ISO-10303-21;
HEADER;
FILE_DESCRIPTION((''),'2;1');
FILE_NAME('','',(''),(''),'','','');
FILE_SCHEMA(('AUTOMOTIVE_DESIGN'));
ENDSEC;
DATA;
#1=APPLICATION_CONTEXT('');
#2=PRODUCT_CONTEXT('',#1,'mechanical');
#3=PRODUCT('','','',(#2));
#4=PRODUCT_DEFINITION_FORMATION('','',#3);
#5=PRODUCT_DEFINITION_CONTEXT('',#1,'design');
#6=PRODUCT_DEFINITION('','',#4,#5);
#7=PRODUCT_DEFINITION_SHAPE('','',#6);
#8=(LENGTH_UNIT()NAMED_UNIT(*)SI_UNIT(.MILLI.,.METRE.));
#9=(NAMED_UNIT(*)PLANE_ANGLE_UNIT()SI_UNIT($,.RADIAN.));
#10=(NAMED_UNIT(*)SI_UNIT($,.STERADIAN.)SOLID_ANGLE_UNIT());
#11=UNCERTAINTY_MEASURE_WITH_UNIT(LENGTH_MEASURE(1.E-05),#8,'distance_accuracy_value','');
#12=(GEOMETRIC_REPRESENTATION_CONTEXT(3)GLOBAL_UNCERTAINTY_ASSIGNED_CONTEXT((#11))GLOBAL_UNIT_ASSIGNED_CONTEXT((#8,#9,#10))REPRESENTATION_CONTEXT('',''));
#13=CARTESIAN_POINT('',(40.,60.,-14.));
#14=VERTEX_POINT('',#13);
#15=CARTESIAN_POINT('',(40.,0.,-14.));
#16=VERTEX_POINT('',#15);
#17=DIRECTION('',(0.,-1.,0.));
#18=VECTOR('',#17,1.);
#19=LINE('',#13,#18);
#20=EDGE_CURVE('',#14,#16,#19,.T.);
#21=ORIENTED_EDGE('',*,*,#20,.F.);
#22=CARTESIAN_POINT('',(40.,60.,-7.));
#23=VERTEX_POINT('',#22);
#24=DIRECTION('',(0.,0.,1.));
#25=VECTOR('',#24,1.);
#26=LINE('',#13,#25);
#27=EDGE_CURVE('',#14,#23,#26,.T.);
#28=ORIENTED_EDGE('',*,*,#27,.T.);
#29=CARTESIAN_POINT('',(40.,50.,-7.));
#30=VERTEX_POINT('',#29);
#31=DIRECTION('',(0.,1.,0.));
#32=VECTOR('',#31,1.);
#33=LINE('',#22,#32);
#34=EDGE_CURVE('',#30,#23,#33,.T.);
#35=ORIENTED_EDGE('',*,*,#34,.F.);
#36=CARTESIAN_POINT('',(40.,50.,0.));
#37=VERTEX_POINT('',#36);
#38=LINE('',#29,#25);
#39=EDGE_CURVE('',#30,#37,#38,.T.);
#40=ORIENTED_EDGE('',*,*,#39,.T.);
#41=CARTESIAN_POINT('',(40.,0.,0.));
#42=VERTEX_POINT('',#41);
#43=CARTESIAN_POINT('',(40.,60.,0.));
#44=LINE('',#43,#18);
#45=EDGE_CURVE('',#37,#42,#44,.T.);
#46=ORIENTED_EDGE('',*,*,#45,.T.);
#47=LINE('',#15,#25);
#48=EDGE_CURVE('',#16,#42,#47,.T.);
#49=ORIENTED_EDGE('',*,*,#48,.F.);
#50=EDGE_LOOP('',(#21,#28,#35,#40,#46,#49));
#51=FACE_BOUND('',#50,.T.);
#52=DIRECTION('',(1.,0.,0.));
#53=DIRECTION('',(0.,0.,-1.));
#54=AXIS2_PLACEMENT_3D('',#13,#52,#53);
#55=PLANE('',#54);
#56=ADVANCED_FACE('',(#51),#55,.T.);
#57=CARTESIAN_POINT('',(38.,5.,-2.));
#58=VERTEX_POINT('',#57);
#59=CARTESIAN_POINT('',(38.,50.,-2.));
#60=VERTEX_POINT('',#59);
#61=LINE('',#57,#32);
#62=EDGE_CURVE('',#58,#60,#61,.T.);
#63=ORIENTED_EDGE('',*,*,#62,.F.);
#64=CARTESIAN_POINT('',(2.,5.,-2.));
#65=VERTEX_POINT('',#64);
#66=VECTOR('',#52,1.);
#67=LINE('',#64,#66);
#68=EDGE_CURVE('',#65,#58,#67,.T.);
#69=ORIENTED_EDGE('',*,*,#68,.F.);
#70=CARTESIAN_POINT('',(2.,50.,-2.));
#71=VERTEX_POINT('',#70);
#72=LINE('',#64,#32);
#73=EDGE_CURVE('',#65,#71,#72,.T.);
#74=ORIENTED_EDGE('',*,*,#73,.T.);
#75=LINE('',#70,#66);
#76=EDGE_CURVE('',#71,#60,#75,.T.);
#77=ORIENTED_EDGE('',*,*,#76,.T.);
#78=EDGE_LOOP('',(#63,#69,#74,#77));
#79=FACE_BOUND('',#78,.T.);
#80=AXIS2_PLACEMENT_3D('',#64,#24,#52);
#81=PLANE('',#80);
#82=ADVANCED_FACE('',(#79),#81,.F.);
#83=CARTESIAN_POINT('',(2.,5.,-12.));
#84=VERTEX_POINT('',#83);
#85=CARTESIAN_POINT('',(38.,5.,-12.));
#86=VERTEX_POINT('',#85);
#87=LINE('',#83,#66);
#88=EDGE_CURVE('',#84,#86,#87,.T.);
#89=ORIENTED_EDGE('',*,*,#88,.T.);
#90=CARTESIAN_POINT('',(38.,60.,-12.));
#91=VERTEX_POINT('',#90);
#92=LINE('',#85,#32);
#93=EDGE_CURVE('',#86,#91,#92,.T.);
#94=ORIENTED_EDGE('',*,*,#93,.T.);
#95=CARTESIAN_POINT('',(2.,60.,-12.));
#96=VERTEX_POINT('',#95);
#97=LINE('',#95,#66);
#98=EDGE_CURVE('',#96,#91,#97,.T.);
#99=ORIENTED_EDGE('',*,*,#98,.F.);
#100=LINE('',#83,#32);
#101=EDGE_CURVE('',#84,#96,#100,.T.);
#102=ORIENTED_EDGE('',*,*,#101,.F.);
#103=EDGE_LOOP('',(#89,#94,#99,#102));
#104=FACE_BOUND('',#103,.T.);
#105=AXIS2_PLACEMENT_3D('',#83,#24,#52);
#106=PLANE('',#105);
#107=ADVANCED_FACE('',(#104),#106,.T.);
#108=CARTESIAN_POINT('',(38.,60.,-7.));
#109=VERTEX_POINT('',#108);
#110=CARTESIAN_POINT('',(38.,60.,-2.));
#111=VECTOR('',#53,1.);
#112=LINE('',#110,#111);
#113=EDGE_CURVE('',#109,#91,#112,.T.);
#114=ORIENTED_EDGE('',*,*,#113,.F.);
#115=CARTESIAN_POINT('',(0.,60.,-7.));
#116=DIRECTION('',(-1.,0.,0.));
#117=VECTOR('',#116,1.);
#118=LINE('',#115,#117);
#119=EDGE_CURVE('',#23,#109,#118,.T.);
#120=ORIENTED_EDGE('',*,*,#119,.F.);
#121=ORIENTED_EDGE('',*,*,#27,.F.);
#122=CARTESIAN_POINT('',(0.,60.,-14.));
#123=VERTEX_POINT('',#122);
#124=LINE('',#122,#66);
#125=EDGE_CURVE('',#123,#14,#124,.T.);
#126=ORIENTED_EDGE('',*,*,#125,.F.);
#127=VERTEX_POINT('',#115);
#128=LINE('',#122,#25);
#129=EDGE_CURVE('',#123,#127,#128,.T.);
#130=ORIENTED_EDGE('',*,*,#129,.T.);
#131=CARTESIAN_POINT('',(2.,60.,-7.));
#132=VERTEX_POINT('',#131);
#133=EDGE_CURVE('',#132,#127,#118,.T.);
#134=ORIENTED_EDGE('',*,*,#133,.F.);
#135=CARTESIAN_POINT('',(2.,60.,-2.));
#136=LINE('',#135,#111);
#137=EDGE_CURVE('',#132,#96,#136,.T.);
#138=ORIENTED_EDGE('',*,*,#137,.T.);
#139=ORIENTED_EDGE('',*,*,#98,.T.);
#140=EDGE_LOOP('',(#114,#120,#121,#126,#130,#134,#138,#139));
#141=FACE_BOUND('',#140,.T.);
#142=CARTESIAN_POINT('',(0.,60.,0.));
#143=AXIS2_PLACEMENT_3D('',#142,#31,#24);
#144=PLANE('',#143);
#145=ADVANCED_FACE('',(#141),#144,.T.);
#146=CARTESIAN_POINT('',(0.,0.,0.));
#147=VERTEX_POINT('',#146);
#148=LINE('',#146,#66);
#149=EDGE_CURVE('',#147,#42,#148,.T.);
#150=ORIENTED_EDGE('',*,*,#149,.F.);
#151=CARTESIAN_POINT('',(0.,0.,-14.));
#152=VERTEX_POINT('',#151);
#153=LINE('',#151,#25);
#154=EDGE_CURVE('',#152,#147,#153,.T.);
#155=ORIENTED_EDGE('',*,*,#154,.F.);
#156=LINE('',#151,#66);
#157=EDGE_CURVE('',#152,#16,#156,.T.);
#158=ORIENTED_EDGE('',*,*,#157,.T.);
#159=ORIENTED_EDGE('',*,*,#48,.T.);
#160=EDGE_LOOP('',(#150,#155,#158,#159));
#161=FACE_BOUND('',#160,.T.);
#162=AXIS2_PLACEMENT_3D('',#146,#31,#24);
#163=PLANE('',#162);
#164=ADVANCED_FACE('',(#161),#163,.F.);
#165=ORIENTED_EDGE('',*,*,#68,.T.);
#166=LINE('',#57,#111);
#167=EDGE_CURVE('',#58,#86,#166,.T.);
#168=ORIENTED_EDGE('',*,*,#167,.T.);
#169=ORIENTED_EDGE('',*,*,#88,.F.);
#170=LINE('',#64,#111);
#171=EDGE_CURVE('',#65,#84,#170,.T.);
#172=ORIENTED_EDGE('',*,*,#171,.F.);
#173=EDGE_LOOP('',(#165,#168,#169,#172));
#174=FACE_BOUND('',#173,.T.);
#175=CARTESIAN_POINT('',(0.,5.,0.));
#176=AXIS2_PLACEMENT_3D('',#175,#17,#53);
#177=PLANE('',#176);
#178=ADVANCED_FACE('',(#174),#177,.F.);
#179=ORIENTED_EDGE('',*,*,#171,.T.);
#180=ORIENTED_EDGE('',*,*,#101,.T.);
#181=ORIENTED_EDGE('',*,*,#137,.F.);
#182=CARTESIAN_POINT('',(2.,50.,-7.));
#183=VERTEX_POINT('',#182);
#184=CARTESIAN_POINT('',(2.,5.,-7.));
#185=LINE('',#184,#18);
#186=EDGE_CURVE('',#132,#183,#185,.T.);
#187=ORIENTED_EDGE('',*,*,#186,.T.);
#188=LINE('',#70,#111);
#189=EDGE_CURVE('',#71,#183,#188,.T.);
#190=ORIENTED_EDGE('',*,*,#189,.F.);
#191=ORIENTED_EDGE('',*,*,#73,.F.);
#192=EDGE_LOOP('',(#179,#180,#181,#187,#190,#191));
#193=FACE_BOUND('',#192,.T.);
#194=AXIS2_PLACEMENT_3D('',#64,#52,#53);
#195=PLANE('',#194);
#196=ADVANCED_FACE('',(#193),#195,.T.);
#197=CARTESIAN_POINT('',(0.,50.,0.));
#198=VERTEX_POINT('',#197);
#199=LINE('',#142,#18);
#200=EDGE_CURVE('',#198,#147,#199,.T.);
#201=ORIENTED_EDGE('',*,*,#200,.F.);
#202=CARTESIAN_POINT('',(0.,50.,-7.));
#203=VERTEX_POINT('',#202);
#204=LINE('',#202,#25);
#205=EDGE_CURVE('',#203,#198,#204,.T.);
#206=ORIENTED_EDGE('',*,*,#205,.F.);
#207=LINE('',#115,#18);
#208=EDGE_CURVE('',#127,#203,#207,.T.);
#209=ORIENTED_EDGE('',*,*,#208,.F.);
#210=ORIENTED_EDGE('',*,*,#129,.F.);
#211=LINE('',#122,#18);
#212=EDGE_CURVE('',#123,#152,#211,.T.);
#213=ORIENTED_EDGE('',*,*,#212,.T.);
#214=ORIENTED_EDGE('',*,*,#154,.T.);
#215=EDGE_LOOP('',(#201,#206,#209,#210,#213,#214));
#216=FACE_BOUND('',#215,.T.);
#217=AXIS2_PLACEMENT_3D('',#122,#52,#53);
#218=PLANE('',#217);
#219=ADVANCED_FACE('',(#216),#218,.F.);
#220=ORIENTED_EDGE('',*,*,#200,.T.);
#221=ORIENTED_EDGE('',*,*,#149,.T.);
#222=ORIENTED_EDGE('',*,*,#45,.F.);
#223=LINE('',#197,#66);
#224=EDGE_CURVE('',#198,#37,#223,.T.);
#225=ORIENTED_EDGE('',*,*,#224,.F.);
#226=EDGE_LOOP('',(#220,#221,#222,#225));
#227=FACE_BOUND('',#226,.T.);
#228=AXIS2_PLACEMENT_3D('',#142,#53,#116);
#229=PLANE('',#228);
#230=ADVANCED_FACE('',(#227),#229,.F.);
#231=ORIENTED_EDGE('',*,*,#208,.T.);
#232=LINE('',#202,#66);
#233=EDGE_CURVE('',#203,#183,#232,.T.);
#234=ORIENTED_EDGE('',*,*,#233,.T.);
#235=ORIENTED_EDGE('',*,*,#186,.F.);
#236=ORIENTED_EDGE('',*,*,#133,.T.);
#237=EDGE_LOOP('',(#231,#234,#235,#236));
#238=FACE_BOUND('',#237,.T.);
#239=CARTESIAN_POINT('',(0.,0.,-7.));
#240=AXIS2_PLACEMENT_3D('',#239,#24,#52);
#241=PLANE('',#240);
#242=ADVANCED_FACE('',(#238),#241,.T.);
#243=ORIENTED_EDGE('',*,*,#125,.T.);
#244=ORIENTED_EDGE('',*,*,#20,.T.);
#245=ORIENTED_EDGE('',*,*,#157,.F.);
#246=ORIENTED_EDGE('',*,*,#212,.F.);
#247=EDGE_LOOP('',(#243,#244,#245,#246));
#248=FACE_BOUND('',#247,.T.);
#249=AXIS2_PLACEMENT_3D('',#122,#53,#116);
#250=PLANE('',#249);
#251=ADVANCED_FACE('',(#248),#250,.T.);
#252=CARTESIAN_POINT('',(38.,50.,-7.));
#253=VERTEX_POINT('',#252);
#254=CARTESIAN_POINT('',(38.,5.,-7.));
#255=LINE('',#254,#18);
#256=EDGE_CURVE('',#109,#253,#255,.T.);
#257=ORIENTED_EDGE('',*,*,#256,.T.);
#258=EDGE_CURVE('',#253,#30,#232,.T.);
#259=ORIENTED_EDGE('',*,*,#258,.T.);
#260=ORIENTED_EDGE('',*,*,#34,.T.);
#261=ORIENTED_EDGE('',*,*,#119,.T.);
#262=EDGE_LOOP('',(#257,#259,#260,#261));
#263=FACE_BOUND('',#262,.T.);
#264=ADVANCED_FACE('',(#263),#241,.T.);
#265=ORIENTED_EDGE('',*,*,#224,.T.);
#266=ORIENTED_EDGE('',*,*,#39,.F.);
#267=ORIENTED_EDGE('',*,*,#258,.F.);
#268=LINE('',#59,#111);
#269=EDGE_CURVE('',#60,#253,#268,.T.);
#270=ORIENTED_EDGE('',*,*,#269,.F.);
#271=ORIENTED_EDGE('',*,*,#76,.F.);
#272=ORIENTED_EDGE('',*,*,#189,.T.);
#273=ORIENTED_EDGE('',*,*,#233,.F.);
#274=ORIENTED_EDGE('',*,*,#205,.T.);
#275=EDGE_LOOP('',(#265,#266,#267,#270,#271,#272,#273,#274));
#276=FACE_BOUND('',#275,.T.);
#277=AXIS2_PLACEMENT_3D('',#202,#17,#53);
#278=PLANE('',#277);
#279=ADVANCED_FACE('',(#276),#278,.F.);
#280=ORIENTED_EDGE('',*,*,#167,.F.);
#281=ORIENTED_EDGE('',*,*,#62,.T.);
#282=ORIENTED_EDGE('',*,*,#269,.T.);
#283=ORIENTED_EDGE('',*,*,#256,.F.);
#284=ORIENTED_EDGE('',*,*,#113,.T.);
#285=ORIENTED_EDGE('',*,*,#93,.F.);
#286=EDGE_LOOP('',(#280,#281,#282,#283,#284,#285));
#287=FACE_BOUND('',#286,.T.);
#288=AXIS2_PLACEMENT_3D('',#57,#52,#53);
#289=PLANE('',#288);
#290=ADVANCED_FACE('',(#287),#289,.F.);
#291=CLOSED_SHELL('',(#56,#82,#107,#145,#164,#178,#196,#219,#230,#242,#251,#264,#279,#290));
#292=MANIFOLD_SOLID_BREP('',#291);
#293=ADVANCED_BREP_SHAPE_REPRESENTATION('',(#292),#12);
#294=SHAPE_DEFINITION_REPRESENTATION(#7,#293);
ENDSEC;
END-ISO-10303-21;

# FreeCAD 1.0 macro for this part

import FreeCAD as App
import Part
import Sketcher
from FreeCAD import Vector
Q = App.Units.Quantity

doc = App.newDocument("Part")
body = doc.addObject("PartDesign::Body", "Body")

# Sketch on XZ plane
sketch1 = body.newObject("Sketcher::SketchObject", "Sketch")
sketch1.AttachmentSupport = (doc.getObject("XZ_Plane"), [""])
sketch1.MapMode = "FlatFace"
sketch1.addGeometry([
    Part.LineSegment(Vector(0, -14, 0), Vector(0, 0, 0)),
    Part.LineSegment(Vector(0, 0, 0), Vector(40, 0, 0)),
    Part.LineSegment(Vector(40, 0, 0), Vector(40, -14, 0)),
    Part.LineSegment(Vector(40, -14, 0), Vector(0, -14, 0)),
], False)
sketch1.addConstraint([
    Sketcher.Constraint("Coincident", 0, 2, 1, 1),
    Sketcher.Constraint("Coincident", 1, 2, 2, 1),
    Sketcher.Constraint("Coincident", 2, 2, 3, 1),
    Sketcher.Constraint("Coincident", 3, 2, 0, 1),
    Sketcher.Constraint("Vertical", 0),
    Sketcher.Constraint("Horizontal", 1),
    Sketcher.Constraint("Vertical", 2),
    Sketcher.Constraint("Horizontal", 3),
    Sketcher.Constraint("Coincident", 0, 2, -1, 1),
    Sketcher.Constraint("DistanceX", 1, 1, 1, 2, Q("40 mm")),
    Sketcher.Constraint("DistanceY", 0, 1, 0, 2, Q("14 mm")),
])
pad1 = body.newObject("PartDesign::Pad", "Pad")
pad1.Profile = sketch1
pad1.Length = 60
pad1.Reversed = True

# Sketch on XZ plane
sketch2 = body.newObject("Sketcher::SketchObject", "Sketch001")
sketch2.AttachmentSupport = (doc.getObject("XZ_Plane"), [""])
sketch2.MapMode = "FlatFace"
sketch2.AttachmentOffset = App.Placement(Vector(0, 0, -60), App.Rotation())
sketch2.addGeometry([
    Part.LineSegment(Vector(2, -12, 0), Vector(2, -2, 0)),
    Part.LineSegment(Vector(2, -2, 0), Vector(38, -2, 0)),
    Part.LineSegment(Vector(38, -2, 0), Vector(38, -12, 0)),
    Part.LineSegment(Vector(38, -12, 0), Vector(2, -12, 0)),
], False)
sketch2.addConstraint([
    Sketcher.Constraint("Coincident", 0, 2, 1, 1),
    Sketcher.Constraint("Coincident", 1, 2, 2, 1),
    Sketcher.Constraint("Coincident", 2, 2, 3, 1),
    Sketcher.Constraint("Coincident", 3, 2, 0, 1),
    Sketcher.Constraint("Vertical", 0),
    Sketcher.Constraint("Horizontal", 1),
    Sketcher.Constraint("Vertical", 2),
    Sketcher.Constraint("Horizontal", 3),
    Sketcher.Constraint("DistanceX", 1, 1, 1, 2, Q("36 mm")),
    Sketcher.Constraint("DistanceY", 0, 1, 0, 2, Q("10 mm")),
    Sketcher.Constraint("DistanceX", -1, 1, 0, 2, Q("2 mm")),
    Sketcher.Constraint("DistanceY", 0, 2, -1, 1, Q("2 mm")),
])
pocket1 = body.newObject("PartDesign::Pocket", "Pocket")
pocket1.Profile = sketch2
pocket1.Length = 55
pocket1.Reversed = True

# Sketch on XY plane
sketch3 = body.newObject("Sketcher::SketchObject", "Sketch002")
sketch3.AttachmentSupport = (doc.getObject("XY_Plane"), [""])
sketch3.MapMode = "FlatFace"
sketch3.addGeometry([
    Part.LineSegment(Vector(0, 60, 0), Vector(0, 50, 0)),
    Part.LineSegment(Vector(0, 50, 0), Vector(40, 50, 0)),
    Part.LineSegment(Vector(40, 50, 0), Vector(40, 60, 0)),
    Part.LineSegment(Vector(40, 60, 0), Vector(0, 60, 0)),
], False)
sketch3.addConstraint([
    Sketcher.Constraint("Coincident", 0, 2, 1, 1),
    Sketcher.Constraint("Coincident", 1, 2, 2, 1),
    Sketcher.Constraint("Coincident", 2, 2, 3, 1),
    Sketcher.Constraint("Coincident", 3, 2, 0, 1),
    Sketcher.Constraint("Vertical", 0),
    Sketcher.Constraint("Horizontal", 1),
    Sketcher.Constraint("Vertical", 2),
    Sketcher.Constraint("Horizontal", 3),
    Sketcher.Constraint("PointOnObject", 0, 2, -2),
    Sketcher.Constraint("DistanceX", 1, 1, 1, 2, Q("40 mm")),
    Sketcher.Constraint("DistanceY", 0, 2, 0, 1, Q("10 mm")),
    Sketcher.Constraint("DistanceY", -1, 1, 0, 2, Q("50 mm")),
])
pocket2 = body.newObject("PartDesign::Pocket", "Pocket001")
pocket2.Profile = sketch3
pocket2.Length = 7

doc.recompute()
